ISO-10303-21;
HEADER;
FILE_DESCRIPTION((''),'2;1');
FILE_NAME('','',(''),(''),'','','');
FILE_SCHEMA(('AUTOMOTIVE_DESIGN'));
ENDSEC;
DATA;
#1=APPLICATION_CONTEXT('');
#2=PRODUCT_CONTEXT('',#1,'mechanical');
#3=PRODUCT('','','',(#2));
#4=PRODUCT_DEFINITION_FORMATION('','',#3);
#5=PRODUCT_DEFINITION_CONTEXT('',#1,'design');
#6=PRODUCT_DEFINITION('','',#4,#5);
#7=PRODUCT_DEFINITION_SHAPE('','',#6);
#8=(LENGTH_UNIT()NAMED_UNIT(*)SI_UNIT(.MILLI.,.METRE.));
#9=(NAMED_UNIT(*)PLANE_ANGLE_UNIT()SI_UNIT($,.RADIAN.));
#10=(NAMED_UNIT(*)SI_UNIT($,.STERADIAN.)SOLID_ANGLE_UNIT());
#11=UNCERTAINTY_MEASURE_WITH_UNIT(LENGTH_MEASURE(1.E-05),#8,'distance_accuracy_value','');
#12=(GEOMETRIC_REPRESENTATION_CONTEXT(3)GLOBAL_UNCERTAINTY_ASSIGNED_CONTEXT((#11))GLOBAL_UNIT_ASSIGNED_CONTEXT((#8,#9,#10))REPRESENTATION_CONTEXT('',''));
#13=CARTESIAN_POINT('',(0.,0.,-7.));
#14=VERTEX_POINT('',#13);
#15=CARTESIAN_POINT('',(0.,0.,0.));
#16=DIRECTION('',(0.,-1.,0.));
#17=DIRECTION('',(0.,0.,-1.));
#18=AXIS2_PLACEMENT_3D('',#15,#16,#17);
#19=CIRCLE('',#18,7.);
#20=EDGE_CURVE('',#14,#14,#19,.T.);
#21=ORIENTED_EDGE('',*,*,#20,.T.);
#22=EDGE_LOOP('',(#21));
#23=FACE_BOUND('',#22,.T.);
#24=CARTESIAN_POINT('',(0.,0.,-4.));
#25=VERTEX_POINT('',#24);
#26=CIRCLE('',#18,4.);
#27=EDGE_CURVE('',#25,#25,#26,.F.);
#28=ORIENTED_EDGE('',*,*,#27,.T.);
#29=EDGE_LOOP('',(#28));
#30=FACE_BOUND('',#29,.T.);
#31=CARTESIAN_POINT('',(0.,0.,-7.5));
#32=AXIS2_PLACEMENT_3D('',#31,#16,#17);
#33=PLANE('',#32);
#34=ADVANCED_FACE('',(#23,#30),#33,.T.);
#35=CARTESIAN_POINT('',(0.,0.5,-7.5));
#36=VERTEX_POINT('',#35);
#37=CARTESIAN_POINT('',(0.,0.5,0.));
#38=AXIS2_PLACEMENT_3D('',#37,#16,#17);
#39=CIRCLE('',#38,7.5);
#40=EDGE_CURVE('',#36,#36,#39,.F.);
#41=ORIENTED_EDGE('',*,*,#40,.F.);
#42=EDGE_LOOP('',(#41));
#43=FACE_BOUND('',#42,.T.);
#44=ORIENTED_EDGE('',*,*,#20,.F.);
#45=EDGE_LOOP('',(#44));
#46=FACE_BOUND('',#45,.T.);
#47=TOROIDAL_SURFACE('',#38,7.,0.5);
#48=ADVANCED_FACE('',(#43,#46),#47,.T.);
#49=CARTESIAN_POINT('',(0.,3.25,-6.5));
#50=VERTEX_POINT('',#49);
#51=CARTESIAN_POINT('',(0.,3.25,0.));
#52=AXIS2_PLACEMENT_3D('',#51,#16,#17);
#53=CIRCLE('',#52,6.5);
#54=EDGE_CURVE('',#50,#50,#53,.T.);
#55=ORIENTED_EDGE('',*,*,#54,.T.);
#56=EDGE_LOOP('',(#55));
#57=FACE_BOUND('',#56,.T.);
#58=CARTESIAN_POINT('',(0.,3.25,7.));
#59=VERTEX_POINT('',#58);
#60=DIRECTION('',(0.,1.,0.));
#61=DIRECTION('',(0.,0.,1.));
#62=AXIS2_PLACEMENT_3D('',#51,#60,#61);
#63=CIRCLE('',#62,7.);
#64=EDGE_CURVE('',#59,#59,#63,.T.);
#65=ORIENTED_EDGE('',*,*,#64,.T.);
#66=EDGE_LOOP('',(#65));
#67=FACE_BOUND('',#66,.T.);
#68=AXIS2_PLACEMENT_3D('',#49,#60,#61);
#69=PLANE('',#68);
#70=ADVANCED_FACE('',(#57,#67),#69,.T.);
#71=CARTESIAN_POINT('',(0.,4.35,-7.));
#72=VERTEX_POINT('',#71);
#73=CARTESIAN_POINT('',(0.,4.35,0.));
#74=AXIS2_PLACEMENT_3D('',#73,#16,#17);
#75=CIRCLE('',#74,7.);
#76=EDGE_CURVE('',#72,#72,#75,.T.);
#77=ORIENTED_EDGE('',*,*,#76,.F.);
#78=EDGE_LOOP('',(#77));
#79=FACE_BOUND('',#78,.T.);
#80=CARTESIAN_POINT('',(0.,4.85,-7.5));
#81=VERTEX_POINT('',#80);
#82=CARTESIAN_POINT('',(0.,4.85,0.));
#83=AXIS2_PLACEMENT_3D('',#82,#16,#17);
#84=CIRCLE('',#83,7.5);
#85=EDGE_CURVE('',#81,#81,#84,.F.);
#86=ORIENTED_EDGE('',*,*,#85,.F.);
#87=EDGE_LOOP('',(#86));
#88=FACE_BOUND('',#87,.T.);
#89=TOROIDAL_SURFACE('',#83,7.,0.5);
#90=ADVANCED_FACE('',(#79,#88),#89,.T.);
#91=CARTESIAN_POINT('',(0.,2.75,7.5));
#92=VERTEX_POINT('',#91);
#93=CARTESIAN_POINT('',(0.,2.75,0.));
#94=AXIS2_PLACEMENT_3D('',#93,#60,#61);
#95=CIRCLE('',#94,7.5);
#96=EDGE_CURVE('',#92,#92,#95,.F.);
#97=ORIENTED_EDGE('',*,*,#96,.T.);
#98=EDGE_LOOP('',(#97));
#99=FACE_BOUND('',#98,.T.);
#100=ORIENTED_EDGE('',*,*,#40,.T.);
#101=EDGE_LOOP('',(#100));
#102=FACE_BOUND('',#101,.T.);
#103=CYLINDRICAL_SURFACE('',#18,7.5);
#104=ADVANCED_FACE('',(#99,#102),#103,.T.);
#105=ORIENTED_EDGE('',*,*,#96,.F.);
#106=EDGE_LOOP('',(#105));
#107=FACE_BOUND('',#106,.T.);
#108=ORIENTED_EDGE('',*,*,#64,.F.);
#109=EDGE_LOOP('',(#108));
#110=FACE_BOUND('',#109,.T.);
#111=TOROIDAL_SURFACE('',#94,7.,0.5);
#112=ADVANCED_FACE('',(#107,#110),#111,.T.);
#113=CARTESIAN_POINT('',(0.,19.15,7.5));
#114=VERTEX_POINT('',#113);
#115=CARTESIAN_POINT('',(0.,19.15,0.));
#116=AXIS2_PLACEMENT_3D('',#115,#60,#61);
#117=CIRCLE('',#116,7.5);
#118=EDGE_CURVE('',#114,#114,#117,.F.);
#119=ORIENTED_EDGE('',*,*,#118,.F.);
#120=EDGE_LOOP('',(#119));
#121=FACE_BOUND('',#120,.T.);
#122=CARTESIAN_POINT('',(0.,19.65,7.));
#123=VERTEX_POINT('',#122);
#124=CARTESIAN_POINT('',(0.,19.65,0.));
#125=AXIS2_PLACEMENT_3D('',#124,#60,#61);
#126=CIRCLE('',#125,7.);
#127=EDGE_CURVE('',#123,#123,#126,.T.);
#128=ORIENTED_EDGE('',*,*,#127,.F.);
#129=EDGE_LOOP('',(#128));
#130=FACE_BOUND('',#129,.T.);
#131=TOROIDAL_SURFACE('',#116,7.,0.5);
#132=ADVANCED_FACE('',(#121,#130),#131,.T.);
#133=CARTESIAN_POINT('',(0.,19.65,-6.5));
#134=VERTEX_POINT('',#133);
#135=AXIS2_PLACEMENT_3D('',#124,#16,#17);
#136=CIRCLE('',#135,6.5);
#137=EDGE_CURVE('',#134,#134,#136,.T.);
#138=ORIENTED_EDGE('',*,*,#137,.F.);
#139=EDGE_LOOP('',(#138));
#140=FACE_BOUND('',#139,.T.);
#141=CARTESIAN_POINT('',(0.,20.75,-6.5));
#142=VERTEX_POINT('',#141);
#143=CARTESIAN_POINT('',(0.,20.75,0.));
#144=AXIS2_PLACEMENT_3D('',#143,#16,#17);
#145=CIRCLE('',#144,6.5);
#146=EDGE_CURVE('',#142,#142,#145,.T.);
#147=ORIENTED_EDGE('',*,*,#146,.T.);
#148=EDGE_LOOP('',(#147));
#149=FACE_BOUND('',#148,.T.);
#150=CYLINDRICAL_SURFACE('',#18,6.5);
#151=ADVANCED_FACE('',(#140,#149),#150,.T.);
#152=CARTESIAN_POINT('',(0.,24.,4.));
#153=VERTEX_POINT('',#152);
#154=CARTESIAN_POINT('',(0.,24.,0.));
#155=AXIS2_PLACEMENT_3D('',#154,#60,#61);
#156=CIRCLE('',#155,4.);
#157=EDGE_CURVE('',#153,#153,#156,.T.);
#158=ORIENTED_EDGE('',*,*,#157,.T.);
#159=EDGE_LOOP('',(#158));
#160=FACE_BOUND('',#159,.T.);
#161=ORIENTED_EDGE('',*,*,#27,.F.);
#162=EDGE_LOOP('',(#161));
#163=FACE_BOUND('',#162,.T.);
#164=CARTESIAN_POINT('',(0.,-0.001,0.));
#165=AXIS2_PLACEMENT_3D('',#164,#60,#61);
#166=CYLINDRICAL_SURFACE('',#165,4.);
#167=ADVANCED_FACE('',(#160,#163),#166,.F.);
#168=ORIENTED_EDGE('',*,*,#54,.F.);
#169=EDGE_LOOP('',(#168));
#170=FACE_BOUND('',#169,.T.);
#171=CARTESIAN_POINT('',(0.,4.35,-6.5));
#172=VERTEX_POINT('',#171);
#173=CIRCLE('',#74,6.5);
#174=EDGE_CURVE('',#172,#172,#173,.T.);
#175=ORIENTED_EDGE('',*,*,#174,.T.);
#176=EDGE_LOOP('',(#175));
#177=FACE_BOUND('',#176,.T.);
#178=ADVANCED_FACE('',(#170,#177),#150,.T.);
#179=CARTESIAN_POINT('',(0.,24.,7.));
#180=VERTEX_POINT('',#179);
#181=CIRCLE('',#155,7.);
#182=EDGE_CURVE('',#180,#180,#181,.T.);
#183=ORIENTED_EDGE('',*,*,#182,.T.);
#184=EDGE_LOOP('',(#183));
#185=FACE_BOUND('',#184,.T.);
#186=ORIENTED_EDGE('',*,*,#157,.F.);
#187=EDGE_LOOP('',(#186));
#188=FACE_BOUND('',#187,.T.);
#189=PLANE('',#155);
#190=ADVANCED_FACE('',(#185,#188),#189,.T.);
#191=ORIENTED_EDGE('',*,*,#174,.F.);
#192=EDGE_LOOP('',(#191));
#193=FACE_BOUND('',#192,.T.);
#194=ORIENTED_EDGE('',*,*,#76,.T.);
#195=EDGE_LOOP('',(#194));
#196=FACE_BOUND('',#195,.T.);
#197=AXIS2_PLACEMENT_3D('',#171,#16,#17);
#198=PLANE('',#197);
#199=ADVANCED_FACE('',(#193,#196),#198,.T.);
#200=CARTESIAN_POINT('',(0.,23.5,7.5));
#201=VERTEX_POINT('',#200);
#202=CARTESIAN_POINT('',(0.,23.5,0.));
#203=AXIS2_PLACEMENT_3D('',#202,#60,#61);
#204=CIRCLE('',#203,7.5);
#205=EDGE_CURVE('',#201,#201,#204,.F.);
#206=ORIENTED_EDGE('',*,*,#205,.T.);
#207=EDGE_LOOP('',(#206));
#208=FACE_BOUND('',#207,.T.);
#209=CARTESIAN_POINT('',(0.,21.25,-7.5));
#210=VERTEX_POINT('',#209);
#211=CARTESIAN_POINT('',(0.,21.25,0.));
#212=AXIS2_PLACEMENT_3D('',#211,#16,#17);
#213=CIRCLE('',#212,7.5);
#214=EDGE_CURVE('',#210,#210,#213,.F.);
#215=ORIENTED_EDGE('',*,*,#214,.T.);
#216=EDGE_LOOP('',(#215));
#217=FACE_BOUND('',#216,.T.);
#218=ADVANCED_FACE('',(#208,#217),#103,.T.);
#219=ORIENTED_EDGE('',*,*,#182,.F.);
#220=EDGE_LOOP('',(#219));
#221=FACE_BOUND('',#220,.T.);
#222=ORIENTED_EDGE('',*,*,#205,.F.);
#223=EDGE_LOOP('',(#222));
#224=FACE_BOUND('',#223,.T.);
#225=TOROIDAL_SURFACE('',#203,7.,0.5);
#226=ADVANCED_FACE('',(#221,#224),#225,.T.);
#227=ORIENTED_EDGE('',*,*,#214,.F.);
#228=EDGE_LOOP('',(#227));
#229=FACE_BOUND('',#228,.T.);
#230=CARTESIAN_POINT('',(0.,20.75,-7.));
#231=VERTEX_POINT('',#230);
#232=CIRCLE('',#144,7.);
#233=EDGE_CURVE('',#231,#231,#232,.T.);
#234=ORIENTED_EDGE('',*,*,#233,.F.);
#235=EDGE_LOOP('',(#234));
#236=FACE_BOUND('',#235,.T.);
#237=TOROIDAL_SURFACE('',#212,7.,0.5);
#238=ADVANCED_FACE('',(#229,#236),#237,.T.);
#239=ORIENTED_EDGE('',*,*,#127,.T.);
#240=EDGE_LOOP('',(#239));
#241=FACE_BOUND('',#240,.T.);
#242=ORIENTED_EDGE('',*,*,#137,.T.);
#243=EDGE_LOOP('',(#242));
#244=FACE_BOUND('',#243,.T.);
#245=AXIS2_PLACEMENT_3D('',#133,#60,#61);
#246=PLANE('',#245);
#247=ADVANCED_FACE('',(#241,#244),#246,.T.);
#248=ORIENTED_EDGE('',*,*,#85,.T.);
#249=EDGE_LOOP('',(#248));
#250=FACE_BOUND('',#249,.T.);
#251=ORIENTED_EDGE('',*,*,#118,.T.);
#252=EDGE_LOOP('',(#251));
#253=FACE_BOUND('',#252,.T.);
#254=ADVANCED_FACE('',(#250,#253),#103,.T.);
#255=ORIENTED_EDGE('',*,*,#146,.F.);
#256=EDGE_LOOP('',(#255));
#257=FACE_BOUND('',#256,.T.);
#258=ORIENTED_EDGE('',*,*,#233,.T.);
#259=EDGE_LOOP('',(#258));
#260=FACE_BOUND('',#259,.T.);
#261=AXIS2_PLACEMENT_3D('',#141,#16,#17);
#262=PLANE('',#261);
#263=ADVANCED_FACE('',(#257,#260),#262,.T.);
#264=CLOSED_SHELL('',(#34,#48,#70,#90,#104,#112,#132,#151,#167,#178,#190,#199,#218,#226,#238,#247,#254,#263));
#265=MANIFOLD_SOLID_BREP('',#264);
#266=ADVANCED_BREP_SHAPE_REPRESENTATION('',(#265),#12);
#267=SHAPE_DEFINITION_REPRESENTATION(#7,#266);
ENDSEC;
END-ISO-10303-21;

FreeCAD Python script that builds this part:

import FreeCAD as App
import Part
import Sketcher

V = App.Vector
Q = App.Units.Quantity


def edges_at(feature, points):
    """Names of the edges that pass closest to the given points."""
    edges = feature.Shape.Edges
    near = lambda p: min(range(len(edges)), key=lambda i: edges[i].distToShape(Part.Vertex(*p))[0])
    return sorted({f"Edge{near(p) + 1}" for p in points})


def add_polygon(sketch, points):
    """Adds a closed chain of lines whose ends are joined by coincident constraints."""
    first, n = sketch.GeometryCount, len(points)
    for a, b in zip(points, points[1:] + points[:1]):
        sketch.addGeometry(Part.LineSegment(App.Vector(*a, 0), App.Vector(*b, 0)), False)
    for i in range(n):
        sketch.addConstraint(Sketcher.Constraint("Coincident", first + i, 2, first + (i + 1) % n, 1))

doc = App.newDocument("Part")
body = doc.addObject("PartDesign::Body", "Body")

# Sketch on YZ plane
sketch1 = body.newObject("Sketcher::SketchObject", "Sketch")
sketch1.AttachmentSupport = (doc.getObject("YZ_Plane"), [""])
sketch1.MapMode = "FlatFace"
add_polygon(sketch1, [(24, 0), (0, 0), (0, -7.5), (3.25, -7.5), (3.25, -6.5), (4.35, -6.5), (4.35, -7.5), (19.65, -7.5), (19.65, -6.5), (20.75, -6.5), (20.75, -7.5), (24, -7.5)])  # lines 0-11
sketch1.addConstraint([
    Sketcher.Constraint("Horizontal", 0),
    Sketcher.Constraint("Vertical", 1),
    Sketcher.Constraint("Horizontal", 2),
    Sketcher.Constraint("Vertical", 3),
    Sketcher.Constraint("Horizontal", 4),
    Sketcher.Constraint("Vertical", 5),
    Sketcher.Constraint("Horizontal", 6),
    Sketcher.Constraint("Vertical", 7),
    Sketcher.Constraint("Horizontal", 8),
    Sketcher.Constraint("Vertical", 9),
    Sketcher.Constraint("Horizontal", 10),
    Sketcher.Constraint("Vertical", 11),
    Sketcher.Constraint("Coincident", 0, 2, -1, 1),
    Sketcher.Constraint("Horizontal", 2, 2, 5, 2),
    Sketcher.Constraint("Horizontal", 4, 2, 7, 2),
    Sketcher.Constraint("Horizontal", 6, 2, 9, 2),
    Sketcher.Constraint("Equal", 4, 8),
    Sketcher.Constraint("Equal", 2, 10),
    Sketcher.Constraint("DistanceX", 0, 2, 0, 1, Q("24 mm")),
    Sketcher.Constraint("DistanceY", 3, 1, 3, 2, Q("1 mm")),
    Sketcher.Constraint("DistanceX", 4, 1, 4, 2, Q("1.1 mm")),
    Sketcher.Constraint("DistanceX", 6, 1, 6, 2, Q("15.3 mm")),
    Sketcher.Constraint("DistanceY", 1, 2, 1, 1, Q("7.5 mm")),
])
revolution = body.newObject("PartDesign::Revolution", "Revolution")
revolution.Profile = sketch1
revolution.ReferenceAxis = (sketch1, ["H_Axis"])
revolution.Angle = 360

# Sketch on XZ plane
sketch2 = body.newObject("Sketcher::SketchObject", "Sketch001")
sketch2.AttachmentSupport = (doc.getObject("XZ_Plane"), [""])
sketch2.MapMode = "FlatFace"
sketch2.AttachmentOffset = App.Placement(V(0, 0, -24), App.Rotation())
sketch2.addGeometry(Part.Circle(V(0, 0, 0), V(0, 0, 1), 4), False)
sketch2.addConstraint([
    Sketcher.Constraint("Coincident", 0, 3, -1, 1),
    Sketcher.Constraint("Diameter", 0, Q("8 mm")),
])
pocket1 = body.newObject("PartDesign::Pocket", "Pocket")
pocket1.Profile = sketch2
pocket1.Type = "UpToFirst"
pocket1.Reversed = True
doc.recompute()

fillet = body.newObject("PartDesign::Fillet", "Fillet")
fillet.Base = (pocket1, edges_at(pocket1, [(0, 24, 7.5), (0, 0, 7.5)]))
fillet.Radius = 0.5
doc.recompute()

fillet2 = body.newObject("PartDesign::Fillet", "Fillet001")
fillet2.Base = (fillet, edges_at(fillet, [
    (0, 4.35, 7.5),
    (0, 19.65, 7.5),
    (0, 20.75, 7.5),
    (0, 3.25, 7.5),
]))
fillet2.Radius = 0.5

doc.recompute()
